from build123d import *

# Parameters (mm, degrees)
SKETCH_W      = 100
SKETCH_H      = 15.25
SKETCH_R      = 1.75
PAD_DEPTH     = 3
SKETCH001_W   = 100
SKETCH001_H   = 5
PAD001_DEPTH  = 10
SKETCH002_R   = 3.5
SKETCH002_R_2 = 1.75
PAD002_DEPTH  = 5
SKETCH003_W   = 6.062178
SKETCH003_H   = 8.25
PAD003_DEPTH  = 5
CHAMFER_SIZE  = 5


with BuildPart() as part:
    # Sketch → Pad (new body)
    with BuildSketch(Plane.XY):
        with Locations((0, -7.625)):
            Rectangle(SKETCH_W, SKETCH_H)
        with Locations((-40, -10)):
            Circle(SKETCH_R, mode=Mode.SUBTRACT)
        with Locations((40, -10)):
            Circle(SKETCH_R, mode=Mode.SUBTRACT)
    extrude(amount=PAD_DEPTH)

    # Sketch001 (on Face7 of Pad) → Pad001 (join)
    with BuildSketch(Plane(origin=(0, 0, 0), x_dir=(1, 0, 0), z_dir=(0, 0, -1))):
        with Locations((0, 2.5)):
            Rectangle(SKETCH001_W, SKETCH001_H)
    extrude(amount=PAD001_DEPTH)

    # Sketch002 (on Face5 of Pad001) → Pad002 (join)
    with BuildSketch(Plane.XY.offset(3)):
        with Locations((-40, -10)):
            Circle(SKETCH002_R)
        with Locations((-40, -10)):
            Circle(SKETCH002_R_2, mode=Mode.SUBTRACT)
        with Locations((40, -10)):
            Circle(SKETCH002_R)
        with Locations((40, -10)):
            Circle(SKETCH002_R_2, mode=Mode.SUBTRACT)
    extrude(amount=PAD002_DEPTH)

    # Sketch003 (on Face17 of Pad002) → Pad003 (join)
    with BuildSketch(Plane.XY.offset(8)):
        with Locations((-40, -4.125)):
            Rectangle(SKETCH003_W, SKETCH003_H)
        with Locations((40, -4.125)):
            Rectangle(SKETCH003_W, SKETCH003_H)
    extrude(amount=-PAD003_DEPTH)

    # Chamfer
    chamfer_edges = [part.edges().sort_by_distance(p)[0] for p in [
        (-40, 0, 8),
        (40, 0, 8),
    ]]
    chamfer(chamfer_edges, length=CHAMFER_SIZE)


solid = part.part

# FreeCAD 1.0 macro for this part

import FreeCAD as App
import Part
import Sketcher

V = App.Vector


def edges_at(feature, points):
    """Names of the edges that pass closest to the given points."""
    edges = feature.Shape.Edges
    near = lambda p: min(range(len(edges)), key=lambda i: edges[i].distToShape(Part.Vertex(*p))[0])
    return sorted({f"Edge{near(p) + 1}" for p in points})


def add_polygon(sketch, points):
    """Adds a closed chain of lines whose ends are joined by coincident constraints."""
    first, n = sketch.GeometryCount, len(points)
    for a, b in zip(points, points[1:] + points[:1]):
        sketch.addGeometry(Part.LineSegment(App.Vector(*a, 0), App.Vector(*b, 0)), False)
    for i in range(n):
        sketch.addConstraint(Sketcher.Constraint("Coincident", first + i, 2, first + (i + 1) % n, 1))

doc = App.newDocument("Part")
body = doc.addObject("PartDesign::Body", "Body")

# Sketch on XY plane
sketch1 = body.newObject("Sketcher::SketchObject", "Sketch")
sketch1.AttachmentSupport = (doc.getObject("XY_Plane"), [""])
sketch1.MapMode = "FlatFace"
add_polygon(sketch1, [(-50, 0), (-50, -15.2), (50, -15.2), (50, 0)])  # lines 0-3
sketch1.addGeometry(Part.Circle(V(-40, -10, 0), V(0, 0, 1), 1.8), False)  # 4
sketch1.addGeometry(Part.Circle(V(40, -10, 0), V(0, 0, 1), 1.8), False)  # 5
sketch1.addConstraint([
    Sketcher.Constraint("Vertical", 0),
    Sketcher.Constraint("Horizontal", 1),
    Sketcher.Constraint("Vertical", 2),
    Sketcher.Constraint("Horizontal", 3),
    Sketcher.Constraint("Equal", 4, 5),
    Sketcher.Constraint("Symmetric", 2, 2, 3, 2, -1, 1),
    Sketcher.Constraint("Symmetric", 4, 3, 5, 3, -2),
    Sketcher.Constraint("Diameter", 4, 3.5),
    Sketcher.Constraint("DistanceX", 1, 1, 1, 2, 100.0),
    Sketcher.Constraint("DistanceX", 4, 3, -1, 1, 40.0),
    Sketcher.Constraint("DistanceY", 4, 3, -1, 1, 10.0),
    Sketcher.Constraint("DistanceY", 0, 2, 0, 1, 15.25),
])
pad1 = body.newObject("PartDesign::Pad", "Pad")
pad1.Profile = sketch1
pad1.Length = 3

# Sketch on XY plane
sketch2 = body.newObject("Sketcher::SketchObject", "Sketch001")
sketch2.AttachmentSupport = (doc.getObject("XY_Plane"), [""])
sketch2.MapMode = "FlatFace"
add_polygon(sketch2, [(-50, -5), (-50, 0), (50, 0), (50, -5)])  # lines 0-3
sketch2.addConstraint([
    Sketcher.Constraint("Vertical", 0),
    Sketcher.Constraint("Horizontal", 1),
    Sketcher.Constraint("Vertical", 2),
    Sketcher.Constraint("Horizontal", 3),
    Sketcher.Constraint("Symmetric", 0, 2, 1, 2, -1, 1),
    Sketcher.Constraint("DistanceX", 1, 1, 1, 2, 100.0),
    Sketcher.Constraint("DistanceY", 0, 1, 0, 2, 5.0),
])
pad2 = body.newObject("PartDesign::Pad", "Pad001")
pad2.Profile = sketch2
pad2.Length = 10
pad2.Reversed = True

# Sketch on XY plane
sketch3 = body.newObject("Sketcher::SketchObject", "Sketch002")
sketch3.AttachmentSupport = (doc.getObject("XY_Plane"), [""])
sketch3.MapMode = "FlatFace"
sketch3.AttachmentOffset = App.Placement(V(0, 0, 3), App.Rotation())
sketch3.addGeometry([
    Part.Circle(V(-40, -10, 0), V(0, 0, 1), 3.5),
    Part.Circle(V(-40, -10, 0), V(0, 0, 1), 1.8),
    Part.Circle(V(40, -10, 0), V(0, 0, 1), 3.5),
    Part.Circle(V(40, -10, 0), V(0, 0, 1), 1.8),
], False)
sketch3.addConstraint([
    Sketcher.Constraint("Coincident", 1, 3, 0, 3),
    Sketcher.Constraint("Coincident", 3, 3, 2, 3),
    Sketcher.Constraint("Equal", 0, 2),
    Sketcher.Constraint("Equal", 1, 3),
    Sketcher.Constraint("Symmetric", 0, 3, 2, 3, -2),
    Sketcher.Constraint("Diameter", 0, 7.0),
    Sketcher.Constraint("Diameter", 1, 3.5),
    Sketcher.Constraint("DistanceX", 0, 3, -1, 1, 40.0),
    Sketcher.Constraint("DistanceY", 0, 3, -1, 1, 10.0),
])
pad3 = body.newObject("PartDesign::Pad", "Pad002")
pad3.Profile = sketch3
pad3.Length = 5

# Sketch on XY plane
sketch4 = body.newObject("Sketcher::SketchObject", "Sketch003")
sketch4.AttachmentSupport = (doc.getObject("XY_Plane"), [""])
sketch4.MapMode = "FlatFace"
sketch4.AttachmentOffset = App.Placement(V(0, 0, 8), App.Rotation())
add_polygon(sketch4, [(-43, 0), (-43, -8), (-37, -8), (-37, 0)])  # lines 0-3
add_polygon(sketch4, [(37, 0), (37, -8), (43, -8), (43, 0)])  # lines 4-7
sketch4.addConstraint([
    Sketcher.Constraint("Vertical", 0),
    Sketcher.Constraint("Horizontal", 1),
    Sketcher.Constraint("Vertical", 2),
    Sketcher.Constraint("Horizontal", 3),
    Sketcher.Constraint("Vertical", 4),
    Sketcher.Constraint("Horizontal", 5),
    Sketcher.Constraint("Vertical", 6),
    Sketcher.Constraint("Horizontal", 7),
    Sketcher.Constraint("Symmetric", 3, 2, 6, 2, -1, 1),
    Sketcher.Constraint("Symmetric", 1, 2, 4, 2, -2),
    Sketcher.Constraint("PointOnObject", 2, 2, -1),
    Sketcher.Constraint("DistanceX", 0, 2, 4, 2, 80.0),
    Sketcher.Constraint("DistanceY", 0, 2, 0, 1, 8.25),
    Sketcher.Constraint("DistanceX", 1, 1, 1, 2, 6.062178),
])
pad4 = body.newObject("PartDesign::Pad", "Pad003")
pad4.Profile = sketch4
pad4.Length = 5
pad4.Reversed = True
doc.recompute()

chamfer = body.newObject("PartDesign::Chamfer", "Chamfer")
chamfer.Base = (pad4, edges_at(pad4, [(-40, 0, 8), (40, 0, 8)]))
chamfer.Size = 5

doc.recompute()
